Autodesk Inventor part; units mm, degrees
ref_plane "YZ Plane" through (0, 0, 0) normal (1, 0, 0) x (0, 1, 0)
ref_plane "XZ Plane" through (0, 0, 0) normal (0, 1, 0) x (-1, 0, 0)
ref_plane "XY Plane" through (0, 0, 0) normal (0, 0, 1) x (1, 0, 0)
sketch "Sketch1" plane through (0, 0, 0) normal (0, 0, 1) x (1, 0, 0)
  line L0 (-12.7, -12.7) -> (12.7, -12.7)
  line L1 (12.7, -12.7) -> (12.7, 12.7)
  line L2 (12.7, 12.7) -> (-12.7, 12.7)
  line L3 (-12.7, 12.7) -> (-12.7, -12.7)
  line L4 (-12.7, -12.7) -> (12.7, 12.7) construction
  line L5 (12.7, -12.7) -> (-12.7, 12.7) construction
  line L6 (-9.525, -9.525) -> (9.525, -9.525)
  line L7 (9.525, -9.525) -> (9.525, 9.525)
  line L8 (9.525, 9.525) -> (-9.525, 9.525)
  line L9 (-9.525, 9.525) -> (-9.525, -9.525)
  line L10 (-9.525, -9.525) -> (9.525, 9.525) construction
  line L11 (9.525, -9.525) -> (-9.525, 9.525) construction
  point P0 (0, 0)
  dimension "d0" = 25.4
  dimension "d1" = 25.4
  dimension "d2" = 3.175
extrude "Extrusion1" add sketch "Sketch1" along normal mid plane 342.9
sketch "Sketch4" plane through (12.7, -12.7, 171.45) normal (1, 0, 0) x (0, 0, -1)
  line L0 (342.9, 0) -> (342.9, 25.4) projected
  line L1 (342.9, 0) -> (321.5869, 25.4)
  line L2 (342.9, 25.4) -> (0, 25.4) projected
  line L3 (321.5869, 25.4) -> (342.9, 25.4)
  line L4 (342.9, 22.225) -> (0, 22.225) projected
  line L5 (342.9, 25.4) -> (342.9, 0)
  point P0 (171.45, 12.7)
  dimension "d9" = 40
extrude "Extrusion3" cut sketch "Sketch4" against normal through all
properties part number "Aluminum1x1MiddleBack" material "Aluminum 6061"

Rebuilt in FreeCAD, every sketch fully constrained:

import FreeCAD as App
import Part
import Sketcher

V = App.Vector
Q = App.Units.Quantity

doc = App.newDocument("Part")
body = doc.addObject("PartDesign::Body", "Body")

# Sketch on XY plane
sketch1 = doc.addObject("Sketcher::SketchObject", "Sketch")
body.addObject(sketch1)
sketch1.AttachmentSupport = (doc.XY_Plane, [""])
sketch1.MapMode = "FlatFace"
sketch1.addGeometry([
    Part.LineSegment(V(-12.7, 12.7, 0), V(-12.7, -12.7, 0)),  # 0
    Part.LineSegment(V(-12.7, -12.7, 0), V(12.7, -12.7, 0)),  # 1
    Part.LineSegment(V(12.7, -12.7, 0), V(12.7, 12.7, 0)),  # 2
    Part.LineSegment(V(12.7, 12.7, 0), V(-12.7, 12.7, 0)),  # 3
    Part.LineSegment(V(9.525, -9.525, 0), V(-9.525, -9.525, 0)),  # 4
    Part.LineSegment(V(-9.525, -9.525, 0), V(-9.525, 9.525, 0)),  # 5
    Part.LineSegment(V(-9.525, 9.525, 0), V(9.525, 9.525, 0)),  # 6
    Part.LineSegment(V(9.525, 9.525, 0), V(9.525, -9.525, 0)),  # 7
], False)
sketch1.addConstraint([
    Sketcher.Constraint("Coincident", 0, 2, 1, 1),
    Sketcher.Constraint("Coincident", 1, 2, 2, 1),
    Sketcher.Constraint("Coincident", 2, 2, 3, 1),
    Sketcher.Constraint("Coincident", 3, 2, 0, 1),
    Sketcher.Constraint("Coincident", 4, 2, 5, 1),
    Sketcher.Constraint("Coincident", 5, 2, 6, 1),
    Sketcher.Constraint("Coincident", 6, 2, 7, 1),
    Sketcher.Constraint("Coincident", 7, 2, 4, 1),
    Sketcher.Constraint("Vertical", 0),
    Sketcher.Constraint("Horizontal", 1),
    Sketcher.Constraint("Vertical", 2),
    Sketcher.Constraint("Horizontal", 3),
    Sketcher.Constraint("Horizontal", 4),
    Sketcher.Constraint("Vertical", 5),
    Sketcher.Constraint("Horizontal", 6),
    Sketcher.Constraint("Vertical", 7),
    Sketcher.Constraint("Symmetric", 0, 2, 2, 2, -1, 1),
    Sketcher.Constraint("Symmetric", 4, 2, 6, 2, -1, 1),
    Sketcher.Constraint("Equal", 3, 0),
    Sketcher.Constraint("Equal", 6, 5),
    Sketcher.Constraint("DistanceX", 1, 1, 1, 2, Q("1 in")),
    Sketcher.Constraint("DistanceX", 0, 2, 4, 2, Q("0.125 in")),
])
pad1 = doc.addObject("PartDesign::Pad", "Pad")
body.addObject(pad1)
pad1.Profile = sketch1
pad1.Length = Q("13.5 in")
pad1.Midplane = True

# Sketch on YZ plane
sketch2 = doc.addObject("Sketcher::SketchObject", "Sketch001")
body.addObject(sketch2)
sketch2.AttachmentSupport = (doc.YZ_Plane, [""])
sketch2.MapMode = "FlatFace"
sketch2.AttachmentOffset = App.Placement(V(0, 0, 0.5 * 25.4), App.Rotation())
sketch2.addGeometry([
    Part.LineSegment(V(-12.7, -171.45, 0), V(12.7, -171.45, 0)),
    Part.LineSegment(V(12.7, -171.45, 0), V(12.7, -150.1369, 0)),
    Part.LineSegment(V(12.7, -150.1369, 0), V(-12.7, -171.45, 0)),
], False)
sketch2.addConstraint([
    Sketcher.Constraint("Coincident", 0, 2, 1, 1),
    Sketcher.Constraint("Coincident", 1, 2, 2, 1),
    Sketcher.Constraint("Coincident", 2, 2, 0, 1),
    Sketcher.Constraint("Horizontal", 0),
    Sketcher.Constraint("Vertical", 1),
    Sketcher.Constraint("DistanceX", 0, 1, 0, 2, Q("1 in")),
    Sketcher.Constraint("Angle", 2, Q("-140 deg")),
    Sketcher.Constraint("DistanceX", -1, 1, 0, 2, Q("0.5 in")),
    Sketcher.Constraint("DistanceY", 0, 2, -1, 1, Q("6.75 in")),
])
pocket1 = doc.addObject("PartDesign::Pocket", "Pocket")
body.addObject(pocket1)
pocket1.Profile = sketch2
pocket1.Type = "ThroughAll"

doc.recompute()
